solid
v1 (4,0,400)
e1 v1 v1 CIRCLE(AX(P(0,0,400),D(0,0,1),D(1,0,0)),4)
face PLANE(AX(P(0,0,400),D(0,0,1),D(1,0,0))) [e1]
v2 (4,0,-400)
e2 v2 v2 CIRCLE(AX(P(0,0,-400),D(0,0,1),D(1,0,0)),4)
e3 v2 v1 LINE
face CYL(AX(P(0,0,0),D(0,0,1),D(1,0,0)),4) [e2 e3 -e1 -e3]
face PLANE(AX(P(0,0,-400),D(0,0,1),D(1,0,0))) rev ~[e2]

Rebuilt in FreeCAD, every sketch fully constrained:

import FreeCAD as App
import Part
import Sketcher

V = App.Vector
Q = App.Units.Quantity

doc = App.newDocument("Part")
body = doc.addObject("PartDesign::Body", "Body")

sketch1 = body.newObject("Sketcher::SketchObject", "Sketch")
sketch1.AttachmentSupport = (doc.getObject("XY_Plane"), [""])
sketch1.MapMode = "FlatFace"
sketch1.addGeometry(Part.Circle(V(0, 0, 0), V(0, 0, 1), 4), False)
sketch1.addConstraint([
    Sketcher.Constraint("Coincident", 0, 3, -1, 1),
    Sketcher.Constraint("Diameter", 0, Q("8 mm")),
])
pad1 = body.newObject("PartDesign::Pad", "Pad")
pad1.Profile = sketch1
pad1.Length = 800
pad1.Midplane = True

doc.recompute()
